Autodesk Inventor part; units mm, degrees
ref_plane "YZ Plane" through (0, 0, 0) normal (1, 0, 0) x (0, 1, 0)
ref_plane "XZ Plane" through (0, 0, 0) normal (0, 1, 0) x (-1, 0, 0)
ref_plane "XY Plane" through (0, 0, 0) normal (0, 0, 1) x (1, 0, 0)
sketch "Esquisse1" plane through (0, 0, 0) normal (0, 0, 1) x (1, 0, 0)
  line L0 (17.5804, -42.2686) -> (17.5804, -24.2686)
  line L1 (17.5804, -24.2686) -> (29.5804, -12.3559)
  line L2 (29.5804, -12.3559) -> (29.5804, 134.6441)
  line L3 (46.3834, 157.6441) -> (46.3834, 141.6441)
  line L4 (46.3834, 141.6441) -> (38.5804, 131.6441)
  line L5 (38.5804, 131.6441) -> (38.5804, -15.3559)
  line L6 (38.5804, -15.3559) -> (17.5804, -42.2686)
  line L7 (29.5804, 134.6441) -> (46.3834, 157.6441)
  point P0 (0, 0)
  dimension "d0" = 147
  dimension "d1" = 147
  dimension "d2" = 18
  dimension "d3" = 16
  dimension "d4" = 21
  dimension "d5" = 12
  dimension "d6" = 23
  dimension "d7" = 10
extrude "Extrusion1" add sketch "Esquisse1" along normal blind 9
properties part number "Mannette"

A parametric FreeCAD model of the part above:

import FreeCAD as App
import Part
import Sketcher
Q = App.Units.Quantity


def add_polygon(sketch, points):
    """Adds a closed chain of lines whose ends are joined by coincident constraints."""
    first, n = sketch.GeometryCount, len(points)
    for a, b in zip(points, points[1:] + points[:1]):
        sketch.addGeometry(Part.LineSegment(App.Vector(*a, 0), App.Vector(*b, 0)), False)
    for i in range(n):
        sketch.addConstraint(Sketcher.Constraint("Coincident", first + i, 2, first + (i + 1) % n, 1))

doc = App.newDocument("Part")
body = doc.addObject("PartDesign::Body", "Body")

sketch1 = body.newObject("Sketcher::SketchObject", "Sketch")
sketch1.AttachmentSupport = (doc.getObject("XY_Plane"), [""])
sketch1.MapMode = "FlatFace"
add_polygon(sketch1, [(17.5804, -24.2686), (17.5804, -42.2686), (38.5804, -15.3559), (38.5804, 131.6441), (46.3834, 141.6441), (46.3834, 157.6441), (29.5804, 134.6441), (29.5804, -12.3559)])
sketch1.addConstraint(Sketcher.Constraint("Vertical", 0))
sketch1.addConstraint(Sketcher.Constraint("Vertical", 2))
sketch1.addConstraint(Sketcher.Constraint("Vertical", 4))
sketch1.addConstraint(Sketcher.Constraint("Vertical", 6))
sketch1.addConstraint(Sketcher.Constraint("Parallel", 1, 3))
sketch1.addConstraint(Sketcher.Constraint("Equal", 2, 6))
sketch1.addConstraint(Sketcher.Constraint("DistanceY", 0, 2, 0, 1, Q("18 mm")))
sketch1.addConstraint(Sketcher.Constraint("DistanceY", 2, 1, 2, 2, Q("147 mm")))
sketch1.addConstraint(Sketcher.Constraint("DistanceY", 4, 1, 4, 2, Q("16 mm")))
sketch1.addConstraint(Sketcher.Constraint("DistanceX", 0, 2, 1, 2, Q("21 mm")))
sketch1.addConstraint(Sketcher.Constraint("DistanceY", 2, 2, 3, 2, Q("10 mm")))
sketch1.addConstraint(Sketcher.Constraint("DistanceY", 5, 2, 4, 2, Q("23 mm")))
sketch1.addConstraint(Sketcher.Constraint("DistanceX", 0, 2, 5, 2, Q("12 mm")))
sketch1.addConstraint(Sketcher.Constraint("Angle", 5, Q("-126.1506 deg")))
sketch1.addConstraint(Sketcher.Constraint("DistanceY", 1, 2, -1, 1, Q("15.356 mm")))
sketch1.addConstraint(Sketcher.Constraint("DistanceX", -1, 1, 0, 2, Q("17.5804 mm")))
pad1 = body.newObject("PartDesign::Pad", "Pad")
pad1.Profile = sketch1
pad1.Length = 9

doc.recompute()
